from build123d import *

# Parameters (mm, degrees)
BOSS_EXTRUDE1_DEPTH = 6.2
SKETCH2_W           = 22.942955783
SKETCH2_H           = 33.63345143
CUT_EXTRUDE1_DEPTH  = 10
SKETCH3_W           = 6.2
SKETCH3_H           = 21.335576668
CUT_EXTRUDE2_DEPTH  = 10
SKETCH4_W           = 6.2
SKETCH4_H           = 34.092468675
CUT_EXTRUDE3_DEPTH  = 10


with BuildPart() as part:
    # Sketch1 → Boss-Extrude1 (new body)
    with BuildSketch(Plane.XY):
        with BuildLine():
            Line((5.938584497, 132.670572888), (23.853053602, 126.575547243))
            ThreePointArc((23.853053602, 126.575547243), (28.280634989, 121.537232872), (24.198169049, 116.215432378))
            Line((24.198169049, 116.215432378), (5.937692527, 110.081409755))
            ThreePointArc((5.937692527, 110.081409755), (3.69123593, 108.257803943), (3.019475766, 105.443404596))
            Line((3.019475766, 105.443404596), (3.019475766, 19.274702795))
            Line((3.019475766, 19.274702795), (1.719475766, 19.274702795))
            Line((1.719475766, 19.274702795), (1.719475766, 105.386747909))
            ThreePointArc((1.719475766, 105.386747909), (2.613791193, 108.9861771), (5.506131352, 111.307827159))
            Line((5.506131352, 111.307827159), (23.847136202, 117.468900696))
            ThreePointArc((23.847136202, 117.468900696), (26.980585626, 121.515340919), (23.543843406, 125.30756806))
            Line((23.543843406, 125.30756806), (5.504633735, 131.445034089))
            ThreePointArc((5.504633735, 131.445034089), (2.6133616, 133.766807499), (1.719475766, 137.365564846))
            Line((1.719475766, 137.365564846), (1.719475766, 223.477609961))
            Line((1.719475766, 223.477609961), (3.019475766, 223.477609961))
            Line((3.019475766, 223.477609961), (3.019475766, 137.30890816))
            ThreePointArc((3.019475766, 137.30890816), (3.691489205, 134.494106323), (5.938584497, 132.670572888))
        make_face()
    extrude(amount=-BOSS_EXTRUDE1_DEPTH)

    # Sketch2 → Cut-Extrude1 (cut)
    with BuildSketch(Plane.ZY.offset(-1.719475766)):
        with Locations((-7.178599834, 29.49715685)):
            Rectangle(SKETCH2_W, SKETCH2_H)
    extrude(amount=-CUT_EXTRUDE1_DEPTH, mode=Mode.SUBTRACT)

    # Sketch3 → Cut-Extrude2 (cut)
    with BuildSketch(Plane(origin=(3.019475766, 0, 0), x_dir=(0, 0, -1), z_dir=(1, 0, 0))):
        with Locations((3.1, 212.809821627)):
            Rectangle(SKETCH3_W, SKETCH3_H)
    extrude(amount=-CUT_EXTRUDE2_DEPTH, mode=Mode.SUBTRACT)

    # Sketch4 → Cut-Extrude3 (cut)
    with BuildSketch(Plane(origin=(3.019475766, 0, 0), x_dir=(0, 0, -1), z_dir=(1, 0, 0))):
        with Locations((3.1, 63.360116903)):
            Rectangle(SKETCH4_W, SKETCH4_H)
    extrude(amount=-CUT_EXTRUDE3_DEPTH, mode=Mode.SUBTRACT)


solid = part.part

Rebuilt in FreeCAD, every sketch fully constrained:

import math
import FreeCAD as App
import Part
import Sketcher

V = App.Vector

doc = App.newDocument("Part")
body = doc.addObject("PartDesign::Body", "Body")

# Sketch on XY plane
sketch1 = body.newObject("Sketcher::SketchObject", "Sketch")
sketch1.AttachmentSupport = (doc.getObject("XY_Plane"), [""])
sketch1.MapMode = "FlatFace"
sketch1.addGeometry(Part.LineSegment(V(23.9, 126.6, 0), V(5.9, 132.7, 0)), False)
sketch1.addGeometry(Part.ArcOfCircle(Part.Circle(V(7.5, 136.9, 0), V(0, 0, 1), 4.5), math.radians(175), math.radians(250)), False)
sketch1.addGeometry(Part.LineSegment(V(3, 137.3, 0), V(3, 223.5, 0)), False)
sketch1.addGeometry(Part.LineSegment(V(3, 223.5, 0), V(1.7, 223.5, 0)), False)
sketch1.addGeometry(Part.LineSegment(V(1.7, 223.5, 0), V(1.7, 137.4, 0)), False)
sketch1.addGeometry(Part.ArcOfCircle(Part.Circle(V(7.5, 136.9, 0), V(0, 0, 1), 5.8), math.radians(175), math.radians(250)), False)
sketch1.addGeometry(Part.LineSegment(V(5.5, 131.4, 0), V(23.5, 125.3, 0)), False)
sketch1.addGeometry(Part.ArcOfCircle(Part.Circle(V(23, 121.4, 0), V(0, 0, 1), 4), math.radians(-78), math.radians(82)), False)
sketch1.addGeometry(Part.LineSegment(V(23.8, 117.5, 0), V(5.5, 111.3, 0)), False)
sketch1.addGeometry(Part.ArcOfCircle(Part.Circle(V(7.5, 105.9, 0), V(0, 0, 1), 5.8), math.radians(110), math.radians(185)), False)
sketch1.addGeometry(Part.LineSegment(V(1.7, 105.4, 0), V(1.7, 19.3, 0)), False)
sketch1.addGeometry(Part.LineSegment(V(1.7, 19.3, 0), V(3, 19.3, 0)), False)
sketch1.addGeometry(Part.LineSegment(V(3, 19.3, 0), V(3, 105.4, 0)), False)
sketch1.addGeometry(Part.ArcOfCircle(Part.Circle(V(7.5, 105.9, 0), V(0, 0, 1), 4.5), math.radians(110), math.radians(185)), False)
sketch1.addGeometry(Part.LineSegment(V(5.9, 110.1, 0), V(24.2, 116.2, 0)), False)
sketch1.addGeometry(Part.ArcOfCircle(Part.Circle(V(23, 121.4, 0), V(0, 0, 1), 5.3), math.radians(-77), math.radians(81)), False)
sketch1.addConstraint(Sketcher.Constraint("Coincident", 0, 2, 1, 2))
sketch1.addConstraint(Sketcher.Constraint("Coincident", 1, 1, 2, 1))
sketch1.addConstraint(Sketcher.Constraint("Coincident", 2, 2, 3, 1))
sketch1.addConstraint(Sketcher.Constraint("Coincident", 3, 2, 4, 1))
sketch1.addConstraint(Sketcher.Constraint("Coincident", 4, 2, 5, 1))
sketch1.addConstraint(Sketcher.Constraint("Coincident", 5, 2, 6, 1))
sketch1.addConstraint(Sketcher.Constraint("Coincident", 6, 2, 7, 2))
sketch1.addConstraint(Sketcher.Constraint("Coincident", 7, 1, 8, 1))
sketch1.addConstraint(Sketcher.Constraint("Coincident", 8, 2, 9, 1))
sketch1.addConstraint(Sketcher.Constraint("Coincident", 9, 2, 10, 1))
sketch1.addConstraint(Sketcher.Constraint("Coincident", 10, 2, 11, 1))
sketch1.addConstraint(Sketcher.Constraint("Coincident", 11, 2, 12, 1))
sketch1.addConstraint(Sketcher.Constraint("Coincident", 12, 2, 13, 2))
sketch1.addConstraint(Sketcher.Constraint("Coincident", 13, 1, 14, 1))
sketch1.addConstraint(Sketcher.Constraint("Coincident", 14, 2, 15, 1))
sketch1.addConstraint(Sketcher.Constraint("Coincident", 15, 2, 0, 1))
sketch1.addConstraint(Sketcher.Constraint("Vertical", 2))
sketch1.addConstraint(Sketcher.Constraint("Horizontal", 3))
sketch1.addConstraint(Sketcher.Constraint("Vertical", 4))
sketch1.addConstraint(Sketcher.Constraint("Vertical", 10))
sketch1.addConstraint(Sketcher.Constraint("Horizontal", 11))
sketch1.addConstraint(Sketcher.Constraint("Vertical", 12))
sketch1.addConstraint(Sketcher.Constraint("Coincident", 5, 3, 1, 3))
sketch1.addConstraint(Sketcher.Constraint("Coincident", 13, 3, 9, 3))
sketch1.addConstraint(Sketcher.Constraint("Coincident", 15, 3, 7, 3))
sketch1.addConstraint(Sketcher.Constraint("Equal", 5, 9))
sketch1.addConstraint(Sketcher.Constraint("Equal", 1, 13))
sketch1.addConstraint(Sketcher.Constraint("Parallel", 0, 6))
sketch1.addConstraint(Sketcher.Constraint("Parallel", 8, 14))
sketch1.addConstraint(Sketcher.Constraint("Vertical", 5, 3, 9, 3))
sketch1.addConstraint(Sketcher.Constraint("Vertical", 4, 2, 9, 2))
sketch1.addConstraint(Sketcher.Constraint("Vertical", 2, 2, 11, 2))
sketch1.addConstraint(Sketcher.Constraint("Equal", 4, 10))
sketch1.addConstraint(Sketcher.Constraint("Radius", 1, 4.5))
sketch1.addConstraint(Sketcher.Constraint("Radius", 5, 5.8))
sketch1.addConstraint(Sketcher.Constraint("DistanceX", 3, 2, 3, 1, 1.3))
sketch1.addConstraint(Sketcher.Constraint("DistanceX", 1, 3, 7, 3, 15.5))
sketch1.addConstraint(Sketcher.Constraint("DistanceY", 9, 3, 7, 3, 15.5))
sketch1.addConstraint(Sketcher.Constraint("DistanceY", 2, 1, 2, 2, 86.168702))
sketch1.addConstraint(Sketcher.Constraint("Radius", 7, 3.983537))
sketch1.addConstraint(Sketcher.Constraint("Radius", 15, 5.283537))
sketch1.addConstraint(Sketcher.Constraint("Distance", 6, 19.0547))
sketch1.addConstraint(Sketcher.Constraint("DistanceY", -1, 1, 7, 1, 117.468901))
sketch1.addConstraint(Sketcher.Constraint("DistanceY", 13, 3, 8, 2, 5.446502))
sketch1.addConstraint(Sketcher.Constraint("Distance", 8, 19.34816))
sketch1.addConstraint(Sketcher.Constraint("Distance", 14, 19.263209))
sketch1.addConstraint(Sketcher.Constraint("DistanceY", 4, 2, 4, 1, 86.112045))
sketch1.addConstraint(Sketcher.Constraint("DistanceY", -1, 1, 1, 1, 137.308908))
sketch1.addConstraint(Sketcher.Constraint("DistanceY", -1, 1, 6, 2, 125.307568))
sketch1.addConstraint(Sketcher.Constraint("DistanceX", -1, 1, 8, 2, 5.506131))
sketch1.addConstraint(Sketcher.Constraint("DistanceX", 1, 1, 0, 2, 2.919109))
pad1 = body.newObject("PartDesign::Pad", "Pad")
pad1.Profile = sketch1
pad1.Length = 6.2
pad1.Reversed = True

# Sketch on YZ plane
sketch2 = body.newObject("Sketcher::SketchObject", "Sketch001")
sketch2.AttachmentSupport = (doc.getObject("YZ_Plane"), [""])
sketch2.MapMode = "FlatFace"
sketch2.AttachmentOffset = App.Placement(V(0, 0, 1.719476), App.Rotation())
sketch2.addGeometry(Part.LineSegment(V(46, -19, 0), V(13, -19, 0)), False)
sketch2.addGeometry(Part.LineSegment(V(13, -19, 0), V(13, 4, 0)), False)
sketch2.addGeometry(Part.LineSegment(V(13, 4, 0), V(46, 4, 0)), False)
sketch2.addGeometry(Part.LineSegment(V(46, 4, 0), V(46, -19, 0)), False)
sketch2.addConstraint(Sketcher.Constraint("Coincident", 0, 2, 1, 1))
sketch2.addConstraint(Sketcher.Constraint("Coincident", 1, 2, 2, 1))
sketch2.addConstraint(Sketcher.Constraint("Coincident", 2, 2, 3, 1))
sketch2.addConstraint(Sketcher.Constraint("Coincident", 3, 2, 0, 1))
sketch2.addConstraint(Sketcher.Constraint("Horizontal", 0))
sketch2.addConstraint(Sketcher.Constraint("Vertical", 1))
sketch2.addConstraint(Sketcher.Constraint("Horizontal", 2))
sketch2.addConstraint(Sketcher.Constraint("Vertical", 3))
sketch2.addConstraint(Sketcher.Constraint("DistanceX", 0, 2, 0, 1, 33.633451))
sketch2.addConstraint(Sketcher.Constraint("DistanceY", 1, 1, 1, 2, 22.942956))
sketch2.addConstraint(Sketcher.Constraint("DistanceX", -1, 1, 0, 2, 12.680431))
sketch2.addConstraint(Sketcher.Constraint("DistanceY", -1, 1, 1, 2, 4.292878))
pocket1 = body.newObject("PartDesign::Pocket", "Pocket")
pocket1.Profile = sketch2
pocket1.Length = 10
pocket1.Reversed = True

# Sketch on YZ plane
sketch3 = body.newObject("Sketcher::SketchObject", "Sketch002")
sketch3.AttachmentSupport = (doc.getObject("YZ_Plane"), [""])
sketch3.MapMode = "FlatFace"
sketch3.AttachmentOffset = App.Placement(V(0, 0, 3.019476), App.Rotation())
sketch3.addGeometry(Part.LineSegment(V(223, 0, 0), V(202, 0, 0)), False)
sketch3.addGeometry(Part.LineSegment(V(202, 0, 0), V(202, -6, 0)), False)
sketch3.addGeometry(Part.LineSegment(V(202, -6, 0), V(223, -6, 0)), False)
sketch3.addGeometry(Part.LineSegment(V(223, -6, 0), V(223, 0, 0)), False)
sketch3.addConstraint(Sketcher.Constraint("Coincident", 0, 2, 1, 1))
sketch3.addConstraint(Sketcher.Constraint("Coincident", 1, 2, 2, 1))
sketch3.addConstraint(Sketcher.Constraint("Coincident", 2, 2, 3, 1))
sketch3.addConstraint(Sketcher.Constraint("Coincident", 3, 2, 0, 1))
sketch3.addConstraint(Sketcher.Constraint("Horizontal", 0))
sketch3.addConstraint(Sketcher.Constraint("Vertical", 1))
sketch3.addConstraint(Sketcher.Constraint("Horizontal", 2))
sketch3.addConstraint(Sketcher.Constraint("Vertical", 3))
sketch3.addConstraint(Sketcher.Constraint("PointOnObject", 0, 2, -1))
sketch3.addConstraint(Sketcher.Constraint("DistanceY", 1, 2, 1, 1, 6.2))
sketch3.addConstraint(Sketcher.Constraint("DistanceX", 0, 2, 0, 1, 21.335577))
sketch3.addConstraint(Sketcher.Constraint("DistanceX", -1, 1, 2, 2, 223.47761))
pocket2 = body.newObject("PartDesign::Pocket", "Pocket001")
pocket2.Profile = sketch3
pocket2.Length = 10

# Sketch on YZ plane
sketch4 = body.newObject("Sketcher::SketchObject", "Sketch003")
sketch4.AttachmentSupport = (doc.getObject("YZ_Plane"), [""])
sketch4.MapMode = "FlatFace"
sketch4.AttachmentOffset = App.Placement(V(0, 0, 3.019476), App.Rotation())
sketch4.addGeometry(Part.LineSegment(V(80, 0, 0), V(46, 0, 0)), False)
sketch4.addGeometry(Part.LineSegment(V(46, 0, 0), V(46, -6, 0)), False)
sketch4.addGeometry(Part.LineSegment(V(46, -6, 0), V(80, -6, 0)), False)
sketch4.addGeometry(Part.LineSegment(V(80, -6, 0), V(80, 0, 0)), False)
sketch4.addConstraint(Sketcher.Constraint("Coincident", 0, 2, 1, 1))
sketch4.addConstraint(Sketcher.Constraint("Coincident", 1, 2, 2, 1))
sketch4.addConstraint(Sketcher.Constraint("Coincident", 2, 2, 3, 1))
sketch4.addConstraint(Sketcher.Constraint("Coincident", 3, 2, 0, 1))
sketch4.addConstraint(Sketcher.Constraint("Horizontal", 0))
sketch4.addConstraint(Sketcher.Constraint("Vertical", 1))
sketch4.addConstraint(Sketcher.Constraint("Horizontal", 2))
sketch4.addConstraint(Sketcher.Constraint("Vertical", 3))
sketch4.addConstraint(Sketcher.Constraint("PointOnObject", 0, 2, -1))
sketch4.addConstraint(Sketcher.Constraint("DistanceY", 1, 2, 1, 1, 6.2))
sketch4.addConstraint(Sketcher.Constraint("DistanceX", 0, 2, 0, 1, 34.092469))
sketch4.addConstraint(Sketcher.Constraint("DistanceX", -1, 1, 2, 2, 80.406351))
pocket3 = body.newObject("PartDesign::Pocket", "Pocket002")
pocket3.Profile = sketch4
pocket3.Length = 10

doc.recompute()
